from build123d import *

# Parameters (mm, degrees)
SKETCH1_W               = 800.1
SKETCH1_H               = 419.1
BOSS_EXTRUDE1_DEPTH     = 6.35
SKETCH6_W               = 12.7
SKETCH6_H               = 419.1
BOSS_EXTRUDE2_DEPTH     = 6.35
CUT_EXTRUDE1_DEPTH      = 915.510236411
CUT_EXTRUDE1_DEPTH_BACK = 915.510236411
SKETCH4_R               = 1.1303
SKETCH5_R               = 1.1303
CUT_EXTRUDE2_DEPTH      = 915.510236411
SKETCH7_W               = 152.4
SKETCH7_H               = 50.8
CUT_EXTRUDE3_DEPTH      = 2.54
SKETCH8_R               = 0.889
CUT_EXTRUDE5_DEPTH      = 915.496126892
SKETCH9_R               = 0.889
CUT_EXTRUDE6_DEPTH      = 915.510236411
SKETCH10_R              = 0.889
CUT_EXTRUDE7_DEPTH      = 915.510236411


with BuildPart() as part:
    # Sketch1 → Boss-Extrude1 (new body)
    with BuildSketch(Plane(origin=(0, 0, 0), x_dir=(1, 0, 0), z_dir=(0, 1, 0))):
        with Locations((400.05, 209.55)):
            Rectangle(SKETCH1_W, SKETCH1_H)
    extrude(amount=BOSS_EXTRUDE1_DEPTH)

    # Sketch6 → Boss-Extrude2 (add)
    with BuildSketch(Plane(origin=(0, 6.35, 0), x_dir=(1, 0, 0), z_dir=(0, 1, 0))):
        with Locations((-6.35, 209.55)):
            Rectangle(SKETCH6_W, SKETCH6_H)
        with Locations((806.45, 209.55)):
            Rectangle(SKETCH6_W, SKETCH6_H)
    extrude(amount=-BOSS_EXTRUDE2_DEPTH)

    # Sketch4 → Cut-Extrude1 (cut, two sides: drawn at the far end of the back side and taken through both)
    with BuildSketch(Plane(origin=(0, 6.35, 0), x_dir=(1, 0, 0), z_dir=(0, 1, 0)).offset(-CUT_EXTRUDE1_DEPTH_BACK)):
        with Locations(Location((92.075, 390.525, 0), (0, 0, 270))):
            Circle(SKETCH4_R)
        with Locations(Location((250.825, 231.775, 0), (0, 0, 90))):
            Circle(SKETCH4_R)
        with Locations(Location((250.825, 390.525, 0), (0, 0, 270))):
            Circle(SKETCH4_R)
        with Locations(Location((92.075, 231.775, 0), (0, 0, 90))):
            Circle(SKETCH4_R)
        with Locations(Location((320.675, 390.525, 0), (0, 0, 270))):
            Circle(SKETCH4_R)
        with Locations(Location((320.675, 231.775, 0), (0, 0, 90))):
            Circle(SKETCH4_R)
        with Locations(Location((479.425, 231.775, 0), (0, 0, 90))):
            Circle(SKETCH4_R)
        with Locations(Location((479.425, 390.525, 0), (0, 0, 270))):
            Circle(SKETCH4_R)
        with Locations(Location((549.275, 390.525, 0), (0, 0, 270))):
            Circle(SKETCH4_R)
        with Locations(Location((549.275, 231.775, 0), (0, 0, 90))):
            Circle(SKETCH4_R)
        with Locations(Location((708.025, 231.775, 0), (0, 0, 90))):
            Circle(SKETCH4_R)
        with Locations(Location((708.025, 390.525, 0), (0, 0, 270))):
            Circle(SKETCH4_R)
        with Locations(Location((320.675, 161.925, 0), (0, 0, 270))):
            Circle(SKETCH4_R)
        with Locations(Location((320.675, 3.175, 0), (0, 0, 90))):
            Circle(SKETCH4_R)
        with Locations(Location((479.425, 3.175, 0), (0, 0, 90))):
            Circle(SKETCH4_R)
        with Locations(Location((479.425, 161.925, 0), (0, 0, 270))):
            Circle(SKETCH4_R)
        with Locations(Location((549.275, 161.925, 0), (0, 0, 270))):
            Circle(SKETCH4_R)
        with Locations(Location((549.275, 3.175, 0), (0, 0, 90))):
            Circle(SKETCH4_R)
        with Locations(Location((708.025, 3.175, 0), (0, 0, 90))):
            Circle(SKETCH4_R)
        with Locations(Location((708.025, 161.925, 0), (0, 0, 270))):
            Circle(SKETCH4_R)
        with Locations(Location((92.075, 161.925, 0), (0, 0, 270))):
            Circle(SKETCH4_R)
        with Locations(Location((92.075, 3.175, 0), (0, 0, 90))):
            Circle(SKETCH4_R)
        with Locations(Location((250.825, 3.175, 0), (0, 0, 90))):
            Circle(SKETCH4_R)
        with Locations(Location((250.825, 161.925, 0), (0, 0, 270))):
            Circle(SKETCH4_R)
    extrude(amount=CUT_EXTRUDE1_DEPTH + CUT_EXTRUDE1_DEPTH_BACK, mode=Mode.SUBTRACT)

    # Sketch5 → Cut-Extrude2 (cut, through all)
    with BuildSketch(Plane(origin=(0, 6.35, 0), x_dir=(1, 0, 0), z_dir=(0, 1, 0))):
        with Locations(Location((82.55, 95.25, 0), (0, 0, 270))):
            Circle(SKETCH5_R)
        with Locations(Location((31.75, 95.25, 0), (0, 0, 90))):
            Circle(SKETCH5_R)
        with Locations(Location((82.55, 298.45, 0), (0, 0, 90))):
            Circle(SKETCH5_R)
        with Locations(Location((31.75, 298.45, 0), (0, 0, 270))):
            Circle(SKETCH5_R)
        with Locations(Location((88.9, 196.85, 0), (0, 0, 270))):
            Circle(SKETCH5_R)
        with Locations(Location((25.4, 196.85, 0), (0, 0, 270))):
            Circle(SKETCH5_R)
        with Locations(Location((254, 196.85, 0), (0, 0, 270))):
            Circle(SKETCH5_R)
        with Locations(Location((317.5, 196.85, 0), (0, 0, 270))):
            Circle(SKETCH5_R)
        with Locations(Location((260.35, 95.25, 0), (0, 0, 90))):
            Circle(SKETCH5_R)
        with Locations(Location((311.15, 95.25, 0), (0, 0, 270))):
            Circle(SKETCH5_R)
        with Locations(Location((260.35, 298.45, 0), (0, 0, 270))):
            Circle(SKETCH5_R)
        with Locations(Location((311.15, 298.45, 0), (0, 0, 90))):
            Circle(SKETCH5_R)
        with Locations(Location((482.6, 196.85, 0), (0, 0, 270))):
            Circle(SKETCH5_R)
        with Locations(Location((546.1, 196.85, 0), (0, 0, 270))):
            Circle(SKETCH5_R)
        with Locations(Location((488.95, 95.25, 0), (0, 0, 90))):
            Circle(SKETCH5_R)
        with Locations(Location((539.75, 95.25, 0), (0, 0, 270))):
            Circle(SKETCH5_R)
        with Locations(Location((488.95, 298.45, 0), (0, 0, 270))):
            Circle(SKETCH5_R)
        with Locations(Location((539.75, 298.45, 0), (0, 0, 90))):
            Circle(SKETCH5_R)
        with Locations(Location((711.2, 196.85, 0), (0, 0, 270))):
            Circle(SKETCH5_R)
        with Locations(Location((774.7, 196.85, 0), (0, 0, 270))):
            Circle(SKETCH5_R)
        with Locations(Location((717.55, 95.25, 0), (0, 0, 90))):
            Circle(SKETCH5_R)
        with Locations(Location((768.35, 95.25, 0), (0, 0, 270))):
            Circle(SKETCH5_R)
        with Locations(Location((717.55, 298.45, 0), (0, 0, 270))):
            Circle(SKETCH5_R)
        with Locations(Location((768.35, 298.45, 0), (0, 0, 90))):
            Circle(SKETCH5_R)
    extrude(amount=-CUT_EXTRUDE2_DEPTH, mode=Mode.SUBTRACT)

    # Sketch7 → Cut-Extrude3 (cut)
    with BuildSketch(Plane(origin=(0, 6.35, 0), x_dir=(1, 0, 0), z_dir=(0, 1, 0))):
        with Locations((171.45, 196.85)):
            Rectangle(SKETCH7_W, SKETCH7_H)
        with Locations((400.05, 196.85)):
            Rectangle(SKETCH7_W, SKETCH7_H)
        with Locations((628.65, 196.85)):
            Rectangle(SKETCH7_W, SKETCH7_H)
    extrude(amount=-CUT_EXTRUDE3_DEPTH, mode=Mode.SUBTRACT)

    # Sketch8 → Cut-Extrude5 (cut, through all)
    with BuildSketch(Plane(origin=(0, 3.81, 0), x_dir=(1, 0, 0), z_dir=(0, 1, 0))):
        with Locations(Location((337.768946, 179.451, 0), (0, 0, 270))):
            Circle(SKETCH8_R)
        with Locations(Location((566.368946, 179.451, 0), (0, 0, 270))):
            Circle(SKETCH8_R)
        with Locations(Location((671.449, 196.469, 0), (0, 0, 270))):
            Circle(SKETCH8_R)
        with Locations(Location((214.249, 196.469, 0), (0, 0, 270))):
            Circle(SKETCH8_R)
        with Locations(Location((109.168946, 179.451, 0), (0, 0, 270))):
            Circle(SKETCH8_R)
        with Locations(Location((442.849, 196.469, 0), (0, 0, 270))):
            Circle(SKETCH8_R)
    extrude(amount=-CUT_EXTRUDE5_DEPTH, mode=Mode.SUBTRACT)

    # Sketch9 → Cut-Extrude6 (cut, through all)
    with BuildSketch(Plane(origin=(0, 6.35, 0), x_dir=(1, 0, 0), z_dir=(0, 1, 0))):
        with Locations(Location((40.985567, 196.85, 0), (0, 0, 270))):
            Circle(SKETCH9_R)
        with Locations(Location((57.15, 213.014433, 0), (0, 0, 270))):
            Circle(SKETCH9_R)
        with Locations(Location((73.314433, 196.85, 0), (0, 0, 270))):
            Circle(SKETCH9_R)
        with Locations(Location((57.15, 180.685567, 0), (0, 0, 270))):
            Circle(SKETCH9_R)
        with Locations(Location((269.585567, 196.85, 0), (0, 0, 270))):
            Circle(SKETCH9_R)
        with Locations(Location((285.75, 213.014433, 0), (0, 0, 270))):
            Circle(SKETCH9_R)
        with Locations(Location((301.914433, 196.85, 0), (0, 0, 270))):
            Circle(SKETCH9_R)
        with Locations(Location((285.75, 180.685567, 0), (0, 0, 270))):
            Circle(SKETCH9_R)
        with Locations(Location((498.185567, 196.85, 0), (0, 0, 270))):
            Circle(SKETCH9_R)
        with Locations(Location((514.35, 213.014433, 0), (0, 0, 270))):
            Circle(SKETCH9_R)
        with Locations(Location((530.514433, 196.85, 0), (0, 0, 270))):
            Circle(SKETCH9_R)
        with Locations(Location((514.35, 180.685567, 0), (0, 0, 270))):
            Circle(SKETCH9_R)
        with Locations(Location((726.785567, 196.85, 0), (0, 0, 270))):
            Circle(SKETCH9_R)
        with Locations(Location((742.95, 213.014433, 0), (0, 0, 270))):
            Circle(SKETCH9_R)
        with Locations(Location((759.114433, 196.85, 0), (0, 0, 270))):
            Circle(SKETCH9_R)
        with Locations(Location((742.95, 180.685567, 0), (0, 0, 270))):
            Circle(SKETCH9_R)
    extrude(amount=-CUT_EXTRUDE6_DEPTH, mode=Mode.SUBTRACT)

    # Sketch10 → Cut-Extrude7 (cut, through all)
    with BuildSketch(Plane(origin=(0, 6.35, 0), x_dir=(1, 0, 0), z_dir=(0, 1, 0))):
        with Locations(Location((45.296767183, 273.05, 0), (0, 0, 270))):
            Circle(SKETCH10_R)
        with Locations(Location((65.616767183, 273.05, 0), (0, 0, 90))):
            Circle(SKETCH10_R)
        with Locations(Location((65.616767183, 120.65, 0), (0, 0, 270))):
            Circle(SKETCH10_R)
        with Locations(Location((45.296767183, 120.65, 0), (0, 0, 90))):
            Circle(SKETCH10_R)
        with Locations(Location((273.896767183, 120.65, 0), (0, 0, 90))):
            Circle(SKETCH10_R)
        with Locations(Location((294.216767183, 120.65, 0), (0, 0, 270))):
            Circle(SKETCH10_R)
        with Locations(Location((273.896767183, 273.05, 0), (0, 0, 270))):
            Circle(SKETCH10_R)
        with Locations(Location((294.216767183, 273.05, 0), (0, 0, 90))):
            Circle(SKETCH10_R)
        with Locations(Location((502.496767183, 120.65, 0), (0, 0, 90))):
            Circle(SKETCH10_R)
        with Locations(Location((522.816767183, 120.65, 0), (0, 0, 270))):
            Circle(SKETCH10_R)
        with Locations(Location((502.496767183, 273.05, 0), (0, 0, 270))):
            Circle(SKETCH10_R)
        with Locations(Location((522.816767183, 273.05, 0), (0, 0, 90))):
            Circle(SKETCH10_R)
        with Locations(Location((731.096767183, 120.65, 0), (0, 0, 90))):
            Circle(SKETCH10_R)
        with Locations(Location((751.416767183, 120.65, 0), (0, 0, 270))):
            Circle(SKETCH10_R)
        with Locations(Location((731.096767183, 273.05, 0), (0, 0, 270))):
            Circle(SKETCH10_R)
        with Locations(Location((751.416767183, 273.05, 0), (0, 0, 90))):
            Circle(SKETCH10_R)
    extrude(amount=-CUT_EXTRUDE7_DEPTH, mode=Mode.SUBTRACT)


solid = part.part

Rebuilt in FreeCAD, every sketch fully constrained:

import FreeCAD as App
import Part
import Sketcher
Q = App.Units.Quantity

doc = App.newDocument("Part")
body = doc.addObject("PartDesign::Body", "Body")

# Sketch on XZ plane
sketch1 = body.newObject("Sketcher::SketchObject", "Sketch")
sketch1.AttachmentSupport = (doc.getObject("XZ_Plane"), [""])
sketch1.MapMode = "FlatFace"
sketch1.addGeometry(Part.LineSegment(App.Vector(0, -419.1, 0), App.Vector(0, 0, 0)), False)
sketch1.addGeometry(Part.LineSegment(App.Vector(0, 0, 0), App.Vector(800.1, 0, 0)), False)
sketch1.addGeometry(Part.LineSegment(App.Vector(800.1, 0, 0), App.Vector(800.1, -419.1, 0)), False)
sketch1.addGeometry(Part.LineSegment(App.Vector(800.1, -419.1, 0), App.Vector(0, -419.1, 0)), False)
sketch1.addConstraint(Sketcher.Constraint("Coincident", 0, 2, 1, 1))
sketch1.addConstraint(Sketcher.Constraint("Coincident", 1, 2, 2, 1))
sketch1.addConstraint(Sketcher.Constraint("Coincident", 2, 2, 3, 1))
sketch1.addConstraint(Sketcher.Constraint("Coincident", 3, 2, 0, 1))
sketch1.addConstraint(Sketcher.Constraint("Vertical", 0))
sketch1.addConstraint(Sketcher.Constraint("Horizontal", 1))
sketch1.addConstraint(Sketcher.Constraint("Vertical", 2))
sketch1.addConstraint(Sketcher.Constraint("Horizontal", 3))
sketch1.addConstraint(Sketcher.Constraint("Coincident", 0, 2, -1, 1))
sketch1.addConstraint(Sketcher.Constraint("DistanceX", 1, 1, 1, 2, Q("31.5 in")))
sketch1.addConstraint(Sketcher.Constraint("DistanceY", 0, 1, 0, 2, Q("16.5 in")))
pad1 = body.newObject("PartDesign::Pad", "Pad")
pad1.Profile = sketch1
pad1.Length = Q("0.25 in")
pad1.Reversed = True

# Sketch on XZ plane
sketch2 = body.newObject("Sketcher::SketchObject", "Sketch001")
sketch2.AttachmentSupport = (doc.getObject("XZ_Plane"), [""])
sketch2.MapMode = "FlatFace"
sketch2.AttachmentOffset = App.Placement(App.Vector(0, 0, -0.25 * 25.4), App.Rotation())
sketch2.addGeometry(Part.LineSegment(App.Vector(-12.7, -419.1, 0), App.Vector(-12.7, 0, 0)), False)
sketch2.addGeometry(Part.LineSegment(App.Vector(-12.7, 0, 0), App.Vector(0, 0, 0)), False)
sketch2.addGeometry(Part.LineSegment(App.Vector(0, 0, 0), App.Vector(0, -419.1, 0)), False)
sketch2.addGeometry(Part.LineSegment(App.Vector(0, -419.1, 0), App.Vector(-12.7, -419.1, 0)), False)
sketch2.addGeometry(Part.LineSegment(App.Vector(800.1, -419.1, 0), App.Vector(800.1, 0, 0)), False)
sketch2.addGeometry(Part.LineSegment(App.Vector(800.1, 0, 0), App.Vector(812.8, 0, 0)), False)
sketch2.addGeometry(Part.LineSegment(App.Vector(812.8, 0, 0), App.Vector(812.8, -419.1, 0)), False)
sketch2.addGeometry(Part.LineSegment(App.Vector(812.8, -419.1, 0), App.Vector(800.1, -419.1, 0)), False)
sketch2.addConstraint(Sketcher.Constraint("Coincident", 0, 2, 1, 1))
sketch2.addConstraint(Sketcher.Constraint("Coincident", 1, 2, 2, 1))
sketch2.addConstraint(Sketcher.Constraint("Coincident", 2, 2, 3, 1))
sketch2.addConstraint(Sketcher.Constraint("Coincident", 3, 2, 0, 1))
sketch2.addConstraint(Sketcher.Constraint("Coincident", 4, 2, 5, 1))
sketch2.addConstraint(Sketcher.Constraint("Coincident", 5, 2, 6, 1))
sketch2.addConstraint(Sketcher.Constraint("Coincident", 6, 2, 7, 1))
sketch2.addConstraint(Sketcher.Constraint("Coincident", 7, 2, 4, 1))
sketch2.addConstraint(Sketcher.Constraint("Vertical", 0))
sketch2.addConstraint(Sketcher.Constraint("Horizontal", 1))
sketch2.addConstraint(Sketcher.Constraint("Vertical", 2))
sketch2.addConstraint(Sketcher.Constraint("Horizontal", 3))
sketch2.addConstraint(Sketcher.Constraint("Vertical", 4))
sketch2.addConstraint(Sketcher.Constraint("Horizontal", 5))
sketch2.addConstraint(Sketcher.Constraint("Vertical", 6))
sketch2.addConstraint(Sketcher.Constraint("Horizontal", 7))
sketch2.addConstraint(Sketcher.Constraint("Coincident", 1, 2, -1, 1))
sketch2.addConstraint(Sketcher.Constraint("PointOnObject", 4, 2, -1))
sketch2.addConstraint(Sketcher.Constraint("Horizontal", 3, 2, 6, 2))
sketch2.addConstraint(Sketcher.Constraint("Equal", 3, 5))
sketch2.addConstraint(Sketcher.Constraint("DistanceX", 1, 1, 1, 2, Q("0.5 in")))
sketch2.addConstraint(Sketcher.Constraint("DistanceY", 0, 1, 0, 2, Q("16.5 in")))
sketch2.addConstraint(Sketcher.Constraint("DistanceX", -1, 1, 5, 2, Q("32 in")))
pad2 = body.newObject("PartDesign::Pad", "Pad001")
pad2.Profile = sketch2
pad2.Length = Q("0.25 in")

# Sketch on XZ plane
sketch3 = body.newObject("Sketcher::SketchObject", "Sketch002")
sketch3.AttachmentSupport = (doc.getObject("XZ_Plane"), [""])
sketch3.MapMode = "FlatFace"
sketch3.AttachmentOffset = App.Placement(App.Vector(0, 0, -0.25 * 25.4), App.Rotation())
sketch3.addGeometry(Part.Circle(App.Vector(92.075, -390.525, 0), App.Vector(0, 0, 1), 1.1303), False)
sketch3.addGeometry(Part.Circle(App.Vector(250.825, -231.775, 0), App.Vector(0, 0, 1), 1.1303), False)
sketch3.addGeometry(Part.Circle(App.Vector(250.825, -390.525, 0), App.Vector(0, 0, 1), 1.1303), False)
sketch3.addGeometry(Part.Circle(App.Vector(92.075, -231.775, 0), App.Vector(0, 0, 1), 1.1303), False)
sketch3.addGeometry(Part.Circle(App.Vector(320.675, -390.525, 0), App.Vector(0, 0, 1), 1.1303), False)
sketch3.addGeometry(Part.Circle(App.Vector(320.675, -231.775, 0), App.Vector(0, 0, 1), 1.1303), False)
sketch3.addGeometry(Part.Circle(App.Vector(479.425, -231.775, 0), App.Vector(0, 0, 1), 1.1303), False)
sketch3.addGeometry(Part.Circle(App.Vector(479.425, -390.525, 0), App.Vector(0, 0, 1), 1.1303), False)
sketch3.addGeometry(Part.Circle(App.Vector(549.275, -390.525, 0), App.Vector(0, 0, 1), 1.1303), False)
sketch3.addGeometry(Part.Circle(App.Vector(549.275, -231.775, 0), App.Vector(0, 0, 1), 1.1303), False)
sketch3.addGeometry(Part.Circle(App.Vector(708.025, -231.775, 0), App.Vector(0, 0, 1), 1.1303), False)
sketch3.addGeometry(Part.Circle(App.Vector(708.025, -390.525, 0), App.Vector(0, 0, 1), 1.1303), False)
sketch3.addGeometry(Part.Circle(App.Vector(320.675, -161.925, 0), App.Vector(0, 0, 1), 1.1303), False)
sketch3.addGeometry(Part.Circle(App.Vector(320.675, -3.175, 0), App.Vector(0, 0, 1), 1.1303), False)
sketch3.addGeometry(Part.Circle(App.Vector(479.425, -3.175, 0), App.Vector(0, 0, 1), 1.1303), False)
sketch3.addGeometry(Part.Circle(App.Vector(479.425, -161.925, 0), App.Vector(0, 0, 1), 1.1303), False)
sketch3.addGeometry(Part.Circle(App.Vector(549.275, -161.925, 0), App.Vector(0, 0, 1), 1.1303), False)
sketch3.addGeometry(Part.Circle(App.Vector(549.275, -3.175, 0), App.Vector(0, 0, 1), 1.1303), False)
sketch3.addGeometry(Part.Circle(App.Vector(708.025, -3.175, 0), App.Vector(0, 0, 1), 1.1303), False)
sketch3.addGeometry(Part.Circle(App.Vector(708.025, -161.925, 0), App.Vector(0, 0, 1), 1.1303), False)
sketch3.addGeometry(Part.Circle(App.Vector(92.075, -161.925, 0), App.Vector(0, 0, 1), 1.1303), False)
sketch3.addGeometry(Part.Circle(App.Vector(92.075, -3.175, 0), App.Vector(0, 0, 1), 1.1303), False)
sketch3.addGeometry(Part.Circle(App.Vector(250.825, -3.175, 0), App.Vector(0, 0, 1), 1.1303), False)
sketch3.addGeometry(Part.Circle(App.Vector(250.825, -161.925, 0), App.Vector(0, 0, 1), 1.1303), False)
sketch3.addConstraint(Sketcher.Constraint("Equal", 0, 1))
sketch3.addConstraint(Sketcher.Constraint("Equal", 1, 2))
sketch3.addConstraint(Sketcher.Constraint("Equal", 2, 3))
sketch3.addConstraint(Sketcher.Constraint("Equal", 3, 4))
sketch3.addConstraint(Sketcher.Constraint("Equal", 4, 5))
sketch3.addConstraint(Sketcher.Constraint("Equal", 5, 6))
sketch3.addConstraint(Sketcher.Constraint("Equal", 6, 7))
sketch3.addConstraint(Sketcher.Constraint("Equal", 7, 8))
sketch3.addConstraint(Sketcher.Constraint("Equal", 8, 9))
sketch3.addConstraint(Sketcher.Constraint("Equal", 9, 10))
sketch3.addConstraint(Sketcher.Constraint("Equal", 10, 11))
sketch3.addConstraint(Sketcher.Constraint("Equal", 11, 12))
sketch3.addConstraint(Sketcher.Constraint("Equal", 12, 13))
sketch3.addConstraint(Sketcher.Constraint("Equal", 13, 14))
sketch3.addConstraint(Sketcher.Constraint("Equal", 14, 15))
sketch3.addConstraint(Sketcher.Constraint("Equal", 15, 16))
sketch3.addConstraint(Sketcher.Constraint("Equal", 16, 17))
sketch3.addConstraint(Sketcher.Constraint("Equal", 17, 18))
sketch3.addConstraint(Sketcher.Constraint("Equal", 18, 19))
sketch3.addConstraint(Sketcher.Constraint("Equal", 19, 20))
sketch3.addConstraint(Sketcher.Constraint("Equal", 20, 21))
sketch3.addConstraint(Sketcher.Constraint("Equal", 21, 22))
sketch3.addConstraint(Sketcher.Constraint("Equal", 22, 23))
sketch3.addConstraint(Sketcher.Constraint("Horizontal", 0, 3, 2, 3))
sketch3.addConstraint(Sketcher.Constraint("Horizontal", 1, 3, 3, 3))
sketch3.addConstraint(Sketcher.Constraint("Horizontal", 2, 3, 4, 3))
sketch3.addConstraint(Sketcher.Constraint("Horizontal", 3, 3, 5, 3))
sketch3.addConstraint(Sketcher.Constraint("Horizontal", 5, 3, 6, 3))
sketch3.addConstraint(Sketcher.Constraint("Horizontal", 4, 3, 7, 3))
sketch3.addConstraint(Sketcher.Constraint("Horizontal", 7, 3, 8, 3))
sketch3.addConstraint(Sketcher.Constraint("Horizontal", 6, 3, 9, 3))
sketch3.addConstraint(Sketcher.Constraint("Horizontal", 9, 3, 10, 3))
sketch3.addConstraint(Sketcher.Constraint("Horizontal", 8, 3, 11, 3))
sketch3.addConstraint(Sketcher.Constraint("Horizontal", 13, 3, 14, 3))
sketch3.addConstraint(Sketcher.Constraint("Horizontal", 12, 3, 15, 3))
sketch3.addConstraint(Sketcher.Constraint("Horizontal", 15, 3, 16, 3))
sketch3.addConstraint(Sketcher.Constraint("Horizontal", 14, 3, 17, 3))
sketch3.addConstraint(Sketcher.Constraint("Horizontal", 17, 3, 18, 3))
sketch3.addConstraint(Sketcher.Constraint("Horizontal", 16, 3, 19, 3))
sketch3.addConstraint(Sketcher.Constraint("Horizontal", 19, 3, 20, 3))
sketch3.addConstraint(Sketcher.Constraint("Horizontal", 18, 3, 21, 3))
sketch3.addConstraint(Sketcher.Constraint("Horizontal", 21, 3, 22, 3))
sketch3.addConstraint(Sketcher.Constraint("Horizontal", 20, 3, 23, 3))
sketch3.addConstraint(Sketcher.Constraint("Vertical", 1, 3, 2, 3))
sketch3.addConstraint(Sketcher.Constraint("Vertical", 0, 3, 3, 3))
sketch3.addConstraint(Sketcher.Constraint("Vertical", 4, 3, 5, 3))
sketch3.addConstraint(Sketcher.Constraint("Vertical", 6, 3, 7, 3))
sketch3.addConstraint(Sketcher.Constraint("Vertical", 8, 3, 9, 3))
sketch3.addConstraint(Sketcher.Constraint("Vertical", 10, 3, 11, 3))
sketch3.addConstraint(Sketcher.Constraint("Vertical", 5, 3, 12, 3))
sketch3.addConstraint(Sketcher.Constraint("Vertical", 12, 3, 13, 3))
sketch3.addConstraint(Sketcher.Constraint("Vertical", 7, 3, 14, 3))
sketch3.addConstraint(Sketcher.Constraint("Vertical", 14, 3, 15, 3))
sketch3.addConstraint(Sketcher.Constraint("Vertical", 9, 3, 16, 3))
sketch3.addConstraint(Sketcher.Constraint("Vertical", 16, 3, 17, 3))
sketch3.addConstraint(Sketcher.Constraint("Vertical", 11, 3, 18, 3))
sketch3.addConstraint(Sketcher.Constraint("Vertical", 18, 3, 19, 3))
sketch3.addConstraint(Sketcher.Constraint("Vertical", 3, 3, 20, 3))
sketch3.addConstraint(Sketcher.Constraint("Vertical", 20, 3, 21, 3))
sketch3.addConstraint(Sketcher.Constraint("Vertical", 2, 3, 22, 3))
sketch3.addConstraint(Sketcher.Constraint("Vertical", 22, 3, 23, 3))
sketch3.addConstraint(Sketcher.Constraint("Diameter", 0, Q("0.089 in")))
sketch3.addConstraint(Sketcher.Constraint("DistanceX", 0, 3, 4, 3, Q("9 in")))
sketch3.addConstraint(Sketcher.Constraint("DistanceX", 1, 3, 6, 3, Q("9 in")))
sketch3.addConstraint(Sketcher.Constraint("DistanceX", 4, 3, 8, 3, Q("9 in")))
sketch3.addConstraint(Sketcher.Constraint("DistanceX", 6, 3, 10, 3, Q("9 in")))
sketch3.addConstraint(Sketcher.Constraint("DistanceY", 4, 3, 12, 3, Q("9 in")))
sketch3.addConstraint(Sketcher.Constraint("DistanceY", 5, 3, 13, 3, Q("9 in")))
sketch3.addConstraint(Sketcher.Constraint("DistanceX", 0, 3, 1, 3, Q("6.25 in")))
sketch3.addConstraint(Sketcher.Constraint("DistanceY", 0, 3, 1, 3, Q("6.25 in")))
sketch3.addConstraint(Sketcher.Constraint("DistanceX", -1, 1, 0, 3, Q("3.625 in")))
sketch3.addConstraint(Sketcher.Constraint("DistanceY", 0, 3, -1, 1, Q("15.375 in")))
pocket1 = body.newObject("PartDesign::Pocket", "Pocket")
pocket1.Profile = sketch3
pocket1.Type = "ThroughAll"
pocket1.Midplane = True

# Sketch on XZ plane
sketch4 = body.newObject("Sketcher::SketchObject", "Sketch003")
sketch4.AttachmentSupport = (doc.getObject("XZ_Plane"), [""])
sketch4.MapMode = "FlatFace"
sketch4.AttachmentOffset = App.Placement(App.Vector(0, 0, -0.25 * 25.4), App.Rotation())
sketch4.addGeometry(Part.Circle(App.Vector(82.55, -95.25, 0), App.Vector(0, 0, 1), 1.1303), False)
sketch4.addGeometry(Part.Circle(App.Vector(31.75, -95.25, 0), App.Vector(0, 0, 1), 1.1303), False)
sketch4.addGeometry(Part.Circle(App.Vector(82.55, -298.45, 0), App.Vector(0, 0, 1), 1.1303), False)
sketch4.addGeometry(Part.Circle(App.Vector(31.75, -298.45, 0), App.Vector(0, 0, 1), 1.1303), False)
sketch4.addGeometry(Part.Circle(App.Vector(88.9, -196.85, 0), App.Vector(0, 0, 1), 1.1303), False)
sketch4.addGeometry(Part.Circle(App.Vector(25.4, -196.85, 0), App.Vector(0, 0, 1), 1.1303), False)
sketch4.addGeometry(Part.Circle(App.Vector(254, -196.85, 0), App.Vector(0, 0, 1), 1.1303), False)
sketch4.addGeometry(Part.Circle(App.Vector(317.5, -196.85, 0), App.Vector(0, 0, 1), 1.1303), False)
sketch4.addGeometry(Part.Circle(App.Vector(260.35, -95.25, 0), App.Vector(0, 0, 1), 1.1303), False)
sketch4.addGeometry(Part.Circle(App.Vector(311.15, -95.25, 0), App.Vector(0, 0, 1), 1.1303), False)
sketch4.addGeometry(Part.Circle(App.Vector(260.35, -298.45, 0), App.Vector(0, 0, 1), 1.1303), False)
sketch4.addGeometry(Part.Circle(App.Vector(311.15, -298.45, 0), App.Vector(0, 0, 1), 1.1303), False)
sketch4.addGeometry(Part.Circle(App.Vector(482.6, -196.85, 0), App.Vector(0, 0, 1), 1.1303), False)
sketch4.addGeometry(Part.Circle(App.Vector(546.1, -196.85, 0), App.Vector(0, 0, 1), 1.1303), False)
sketch4.addGeometry(Part.Circle(App.Vector(488.95, -95.25, 0), App.Vector(0, 0, 1), 1.1303), False)
sketch4.addGeometry(Part.Circle(App.Vector(539.75, -95.25, 0), App.Vector(0, 0, 1), 1.1303), False)
sketch4.addGeometry(Part.Circle(App.Vector(488.95, -298.45, 0), App.Vector(0, 0, 1), 1.1303), False)
sketch4.addGeometry(Part.Circle(App.Vector(539.75, -298.45, 0), App.Vector(0, 0, 1), 1.1303), False)
sketch4.addGeometry(Part.Circle(App.Vector(711.2, -196.85, 0), App.Vector(0, 0, 1), 1.1303), False)
sketch4.addGeometry(Part.Circle(App.Vector(774.7, -196.85, 0), App.Vector(0, 0, 1), 1.1303), False)
sketch4.addGeometry(Part.Circle(App.Vector(717.55, -95.25, 0), App.Vector(0, 0, 1), 1.1303), False)
sketch4.addGeometry(Part.Circle(App.Vector(768.35, -95.25, 0), App.Vector(0, 0, 1), 1.1303), False)
sketch4.addGeometry(Part.Circle(App.Vector(717.55, -298.45, 0), App.Vector(0, 0, 1), 1.1303), False)
sketch4.addGeometry(Part.Circle(App.Vector(768.35, -298.45, 0), App.Vector(0, 0, 1), 1.1303), False)
sketch4.addConstraint(Sketcher.Constraint("Equal", 0, 1))
sketch4.addConstraint(Sketcher.Constraint("Equal", 1, 2))
sketch4.addConstraint(Sketcher.Constraint("Equal", 2, 3))
sketch4.addConstraint(Sketcher.Constraint("Equal", 3, 4))
sketch4.addConstraint(Sketcher.Constraint("Equal", 4, 5))
sketch4.addConstraint(Sketcher.Constraint("Equal", 5, 6))
sketch4.addConstraint(Sketcher.Constraint("Equal", 6, 7))
sketch4.addConstraint(Sketcher.Constraint("Equal", 7, 8))
sketch4.addConstraint(Sketcher.Constraint("Equal", 8, 9))
sketch4.addConstraint(Sketcher.Constraint("Equal", 9, 10))
sketch4.addConstraint(Sketcher.Constraint("Equal", 10, 11))
sketch4.addConstraint(Sketcher.Constraint("Equal", 11, 12))
sketch4.addConstraint(Sketcher.Constraint("Equal", 12, 13))
sketch4.addConstraint(Sketcher.Constraint("Equal", 13, 14))
sketch4.addConstraint(Sketcher.Constraint("Equal", 14, 15))
sketch4.addConstraint(Sketcher.Constraint("Equal", 15, 16))
sketch4.addConstraint(Sketcher.Constraint("Equal", 16, 17))
sketch4.addConstraint(Sketcher.Constraint("Equal", 17, 18))
sketch4.addConstraint(Sketcher.Constraint("Equal", 18, 19))
sketch4.addConstraint(Sketcher.Constraint("Equal", 19, 20))
sketch4.addConstraint(Sketcher.Constraint("Equal", 20, 21))
sketch4.addConstraint(Sketcher.Constraint("Equal", 21, 22))
sketch4.addConstraint(Sketcher.Constraint("Equal", 22, 23))
sketch4.addConstraint(Sketcher.Constraint("Horizontal", 0, 3, 1, 3))
sketch4.addConstraint(Sketcher.Constraint("Horizontal", 2, 3, 3, 3))
sketch4.addConstraint(Sketcher.Constraint("Horizontal", 4, 3, 5, 3))
sketch4.addConstraint(Sketcher.Constraint("Horizontal", 5, 3, 6, 3))
sketch4.addConstraint(Sketcher.Constraint("Horizontal", 6, 3, 7, 3))
sketch4.addConstraint(Sketcher.Constraint("Horizontal", 1, 3, 8, 3))
sketch4.addConstraint(Sketcher.Constraint("Horizontal", 8, 3, 9, 3))
sketch4.addConstraint(Sketcher.Constraint("Horizontal", 3, 3, 10, 3))
sketch4.addConstraint(Sketcher.Constraint("Horizontal", 10, 3, 11, 3))
sketch4.addConstraint(Sketcher.Constraint("Horizontal", 7, 3, 12, 3))
sketch4.addConstraint(Sketcher.Constraint("Horizontal", 12, 3, 13, 3))
sketch4.addConstraint(Sketcher.Constraint("Horizontal", 9, 3, 14, 3))
sketch4.addConstraint(Sketcher.Constraint("Horizontal", 14, 3, 15, 3))
sketch4.addConstraint(Sketcher.Constraint("Horizontal", 11, 3, 16, 3))
sketch4.addConstraint(Sketcher.Constraint("Horizontal", 16, 3, 17, 3))
sketch4.addConstraint(Sketcher.Constraint("Horizontal", 13, 3, 18, 3))
sketch4.addConstraint(Sketcher.Constraint("Horizontal", 18, 3, 19, 3))
sketch4.addConstraint(Sketcher.Constraint("Horizontal", 15, 3, 20, 3))
sketch4.addConstraint(Sketcher.Constraint("Horizontal", 20, 3, 21, 3))
sketch4.addConstraint(Sketcher.Constraint("Horizontal", 17, 3, 22, 3))
sketch4.addConstraint(Sketcher.Constraint("Horizontal", 22, 3, 23, 3))
sketch4.addConstraint(Sketcher.Constraint("Vertical", 0, 3, 2, 3))
sketch4.addConstraint(Sketcher.Constraint("Vertical", 1, 3, 3, 3))
sketch4.addConstraint(Sketcher.Constraint("Vertical", 8, 3, 10, 3))
sketch4.addConstraint(Sketcher.Constraint("Vertical", 9, 3, 11, 3))
sketch4.addConstraint(Sketcher.Constraint("Vertical", 14, 3, 16, 3))
sketch4.addConstraint(Sketcher.Constraint("Vertical", 15, 3, 17, 3))
sketch4.addConstraint(Sketcher.Constraint("Vertical", 20, 3, 22, 3))
sketch4.addConstraint(Sketcher.Constraint("Vertical", 21, 3, 23, 3))
sketch4.addConstraint(Sketcher.Constraint("Diameter", 0, Q("0.089 in")))
sketch4.addConstraint(Sketcher.Constraint("DistanceX", -1, 1, 5, 3, Q("1 in")))
sketch4.addConstraint(Sketcher.Constraint("DistanceX", -1, 1, 6, 3, Q("10 in")))
sketch4.addConstraint(Sketcher.Constraint("DistanceX", -1, 1, 12, 3, Q("19 in")))
sketch4.addConstraint(Sketcher.Constraint("DistanceX", -1, 1, 18, 3, Q("28 in")))
sketch4.addConstraint(Sketcher.Constraint("DistanceX", 1, 3, 0, 3, Q("2 in")))
sketch4.addConstraint(Sketcher.Constraint("DistanceY", 2, 3, 0, 3, Q("8 in")))
sketch4.addConstraint(Sketcher.Constraint("DistanceY", 4, 3, 0, 3, Q("4 in")))
sketch4.addConstraint(Sketcher.Constraint("DistanceX", 4, 3, 7, 3, Q("9 in")))
sketch4.addConstraint(Sketcher.Constraint("DistanceX", 0, 3, 8, 3, Q("7 in")))
sketch4.addConstraint(Sketcher.Constraint("DistanceX", 8, 3, 9, 3, Q("2 in")))
sketch4.addConstraint(Sketcher.Constraint("DistanceX", 7, 3, 13, 3, Q("9 in")))
sketch4.addConstraint(Sketcher.Constraint("DistanceX", 9, 3, 14, 3, Q("7 in")))
sketch4.addConstraint(Sketcher.Constraint("DistanceX", 14, 3, 15, 3, Q("2 in")))
sketch4.addConstraint(Sketcher.Constraint("DistanceX", 13, 3, 19, 3, Q("9 in")))
sketch4.addConstraint(Sketcher.Constraint("DistanceX", 15, 3, 20, 3, Q("7 in")))
sketch4.addConstraint(Sketcher.Constraint("DistanceX", 20, 3, 21, 3, Q("2 in")))
sketch4.addConstraint(Sketcher.Constraint("DistanceX", -1, 1, 4, 3, Q("3.5 in")))
sketch4.addConstraint(Sketcher.Constraint("DistanceX", -1, 1, 0, 3, Q("3.25 in")))
sketch4.addConstraint(Sketcher.Constraint("DistanceY", 0, 3, -1, 1, Q("3.75 in")))
pocket2 = body.newObject("PartDesign::Pocket", "Pocket001")
pocket2.Profile = sketch4
pocket2.Type = "ThroughAll"
pocket2.Reversed = True

# Sketch on XZ plane
sketch5 = body.newObject("Sketcher::SketchObject", "Sketch004")
sketch5.AttachmentSupport = (doc.getObject("XZ_Plane"), [""])
sketch5.MapMode = "FlatFace"
sketch5.AttachmentOffset = App.Placement(App.Vector(0, 0, -0.25 * 25.4), App.Rotation())
sketch5.addGeometry(Part.LineSegment(App.Vector(95.25, -222.25, 0), App.Vector(95.25, -171.45, 0)), False)
sketch5.addGeometry(Part.LineSegment(App.Vector(95.25, -171.45, 0), App.Vector(247.65, -171.45, 0)), False)
sketch5.addGeometry(Part.LineSegment(App.Vector(247.65, -171.45, 0), App.Vector(247.65, -222.25, 0)), False)
sketch5.addGeometry(Part.LineSegment(App.Vector(247.65, -222.25, 0), App.Vector(95.25, -222.25, 0)), False)
sketch5.addGeometry(Part.LineSegment(App.Vector(323.85, -222.25, 0), App.Vector(323.85, -171.45, 0)), False)
sketch5.addGeometry(Part.LineSegment(App.Vector(323.85, -171.45, 0), App.Vector(476.25, -171.45, 0)), False)
sketch5.addGeometry(Part.LineSegment(App.Vector(476.25, -171.45, 0), App.Vector(476.25, -222.25, 0)), False)
sketch5.addGeometry(Part.LineSegment(App.Vector(476.25, -222.25, 0), App.Vector(323.85, -222.25, 0)), False)
sketch5.addGeometry(Part.LineSegment(App.Vector(552.45, -222.25, 0), App.Vector(552.45, -171.45, 0)), False)
sketch5.addGeometry(Part.LineSegment(App.Vector(552.45, -171.45, 0), App.Vector(704.85, -171.45, 0)), False)
sketch5.addGeometry(Part.LineSegment(App.Vector(704.85, -171.45, 0), App.Vector(704.85, -222.25, 0)), False)
sketch5.addGeometry(Part.LineSegment(App.Vector(704.85, -222.25, 0), App.Vector(552.45, -222.25, 0)), False)
sketch5.addConstraint(Sketcher.Constraint("Coincident", 0, 2, 1, 1))
sketch5.addConstraint(Sketcher.Constraint("Coincident", 1, 2, 2, 1))
sketch5.addConstraint(Sketcher.Constraint("Coincident", 2, 2, 3, 1))
sketch5.addConstraint(Sketcher.Constraint("Coincident", 3, 2, 0, 1))
sketch5.addConstraint(Sketcher.Constraint("Coincident", 4, 2, 5, 1))
sketch5.addConstraint(Sketcher.Constraint("Coincident", 5, 2, 6, 1))
sketch5.addConstraint(Sketcher.Constraint("Coincident", 6, 2, 7, 1))
sketch5.addConstraint(Sketcher.Constraint("Coincident", 7, 2, 4, 1))
sketch5.addConstraint(Sketcher.Constraint("Coincident", 8, 2, 9, 1))
sketch5.addConstraint(Sketcher.Constraint("Coincident", 9, 2, 10, 1))
sketch5.addConstraint(Sketcher.Constraint("Coincident", 10, 2, 11, 1))
sketch5.addConstraint(Sketcher.Constraint("Coincident", 11, 2, 8, 1))
sketch5.addConstraint(Sketcher.Constraint("Vertical", 0))
sketch5.addConstraint(Sketcher.Constraint("Horizontal", 1))
sketch5.addConstraint(Sketcher.Constraint("Vertical", 2))
sketch5.addConstraint(Sketcher.Constraint("Horizontal", 3))
sketch5.addConstraint(Sketcher.Constraint("Vertical", 4))
sketch5.addConstraint(Sketcher.Constraint("Horizontal", 5))
sketch5.addConstraint(Sketcher.Constraint("Vertical", 6))
sketch5.addConstraint(Sketcher.Constraint("Horizontal", 7))
sketch5.addConstraint(Sketcher.Constraint("Vertical", 8))
sketch5.addConstraint(Sketcher.Constraint("Horizontal", 9))
sketch5.addConstraint(Sketcher.Constraint("Vertical", 10))
sketch5.addConstraint(Sketcher.Constraint("Horizontal", 11))
sketch5.addConstraint(Sketcher.Constraint("Horizontal", 1, 2, 4, 2))
sketch5.addConstraint(Sketcher.Constraint("Horizontal", 3, 2, 6, 2))
sketch5.addConstraint(Sketcher.Constraint("Horizontal", 5, 2, 8, 2))
sketch5.addConstraint(Sketcher.Constraint("Horizontal", 7, 2, 10, 2))
sketch5.addConstraint(Sketcher.Constraint("Equal", 3, 5))
sketch5.addConstraint(Sketcher.Constraint("Equal", 7, 9))
sketch5.addConstraint(Sketcher.Constraint("DistanceX", 1, 1, 1, 2, Q("6 in")))
sketch5.addConstraint(Sketcher.Constraint("DistanceY", 0, 1, 0, 2, Q("2 in")))
sketch5.addConstraint(Sketcher.Constraint("DistanceX", 1, 2, 4, 2, Q("3 in")))
sketch5.addConstraint(Sketcher.Constraint("DistanceX", 5, 2, 8, 2, Q("3 in")))
sketch5.addConstraint(Sketcher.Constraint("DistanceX", -1, 1, 0, 2, Q("3.75 in")))
sketch5.addConstraint(Sketcher.Constraint("DistanceY", 0, 2, -1, 1, Q("6.75 in")))
pocket3 = body.newObject("PartDesign::Pocket", "Pocket002")
pocket3.Profile = sketch5
pocket3.Length = Q("0.1 in")
pocket3.Reversed = True

# Sketch on XZ plane
sketch6 = body.newObject("Sketcher::SketchObject", "Sketch005")
sketch6.AttachmentSupport = (doc.getObject("XZ_Plane"), [""])
sketch6.MapMode = "FlatFace"
sketch6.AttachmentOffset = App.Placement(App.Vector(0, 0, -0.15 * 25.4), App.Rotation())
sketch6.addGeometry(Part.Circle(App.Vector(337.768946, -179.451, 0), App.Vector(0, 0, 1), 0.889), False)
sketch6.addGeometry(Part.Circle(App.Vector(566.368946, -179.451, 0), App.Vector(0, 0, 1), 0.889), False)
sketch6.addGeometry(Part.Circle(App.Vector(671.449, -196.469, 0), App.Vector(0, 0, 1), 0.889), False)
sketch6.addGeometry(Part.Circle(App.Vector(214.249, -196.469, 0), App.Vector(0, 0, 1), 0.889), False)
sketch6.addGeometry(Part.Circle(App.Vector(109.168946, -179.451, 0), App.Vector(0, 0, 1), 0.889), False)
sketch6.addGeometry(Part.Circle(App.Vector(442.849, -196.469, 0), App.Vector(0, 0, 1), 0.889), False)
sketch6.addConstraint(Sketcher.Constraint("Equal", 0, 1))
sketch6.addConstraint(Sketcher.Constraint("Equal", 1, 2))
sketch6.addConstraint(Sketcher.Constraint("Equal", 2, 3))
sketch6.addConstraint(Sketcher.Constraint("Equal", 3, 4))
sketch6.addConstraint(Sketcher.Constraint("Equal", 4, 5))
sketch6.addConstraint(Sketcher.Constraint("Horizontal", 0, 3, 1, 3))
sketch6.addConstraint(Sketcher.Constraint("Horizontal", 2, 3, 3, 3))
sketch6.addConstraint(Sketcher.Constraint("Horizontal", 1, 3, 4, 3))
sketch6.addConstraint(Sketcher.Constraint("Horizontal", 3, 3, 5, 3))
sketch6.addConstraint(Sketcher.Constraint("Diameter", 0, Q("0.07 in")))
sketch6.addConstraint(Sketcher.Constraint("DistanceX", 0, 3, 1, 3, Q("9 in")))
sketch6.addConstraint(Sketcher.Constraint("DistanceX", 3, 3, 2, 3, Q("18 in")))
sketch6.addConstraint(Sketcher.Constraint("DistanceX", 4, 3, 0, 3, Q("9 in")))
sketch6.addConstraint(Sketcher.Constraint("DistanceX", 5, 3, 2, 3, Q("9 in")))
sketch6.addConstraint(Sketcher.Constraint("DistanceY", 2, 3, 1, 3, Q("0.67 in")))
sketch6.addConstraint(Sketcher.Constraint("DistanceY", 0, 3, -1, 1, Q("7.065 in")))
sketch6.addConstraint(Sketcher.Constraint("DistanceX", -1, 1, 2, 3, Q("26.435 in")))
sketch6.addConstraint(Sketcher.Constraint("DistanceX", -1, 1, 0, 3, Q("337.768946 mm")))
pocket4 = body.newObject("PartDesign::Pocket", "Pocket003")
pocket4.Profile = sketch6
pocket4.Type = "ThroughAll"
pocket4.Reversed = True

# Sketch on XZ plane
sketch7 = body.newObject("Sketcher::SketchObject", "Sketch006")
sketch7.AttachmentSupport = (doc.getObject("XZ_Plane"), [""])
sketch7.MapMode = "FlatFace"
sketch7.AttachmentOffset = App.Placement(App.Vector(0, 0, -0.25 * 25.4), App.Rotation())
sketch7.addGeometry(Part.Circle(App.Vector(40.985567, -196.85, 0), App.Vector(0, 0, 1), 0.889), False)
sketch7.addGeometry(Part.Circle(App.Vector(57.15, -213.014433, 0), App.Vector(0, 0, 1), 0.889), False)
sketch7.addGeometry(Part.Circle(App.Vector(73.314433, -196.85, 0), App.Vector(0, 0, 1), 0.889), False)
sketch7.addGeometry(Part.Circle(App.Vector(57.15, -180.685567, 0), App.Vector(0, 0, 1), 0.889), False)
sketch7.addGeometry(Part.Circle(App.Vector(269.585567, -196.85, 0), App.Vector(0, 0, 1), 0.889), False)
sketch7.addGeometry(Part.Circle(App.Vector(285.75, -213.014433, 0), App.Vector(0, 0, 1), 0.889), False)
sketch7.addGeometry(Part.Circle(App.Vector(301.914433, -196.85, 0), App.Vector(0, 0, 1), 0.889), False)
sketch7.addGeometry(Part.Circle(App.Vector(285.75, -180.685567, 0), App.Vector(0, 0, 1), 0.889), False)
sketch7.addGeometry(Part.Circle(App.Vector(498.185567, -196.85, 0), App.Vector(0, 0, 1), 0.889), False)
sketch7.addGeometry(Part.Circle(App.Vector(514.35, -213.014433, 0), App.Vector(0, 0, 1), 0.889), False)
sketch7.addGeometry(Part.Circle(App.Vector(530.514433, -196.85, 0), App.Vector(0, 0, 1), 0.889), False)
sketch7.addGeometry(Part.Circle(App.Vector(514.35, -180.685567, 0), App.Vector(0, 0, 1), 0.889), False)
sketch7.addGeometry(Part.Circle(App.Vector(726.785567, -196.85, 0), App.Vector(0, 0, 1), 0.889), False)
sketch7.addGeometry(Part.Circle(App.Vector(742.95, -213.014433, 0), App.Vector(0, 0, 1), 0.889), False)
sketch7.addGeometry(Part.Circle(App.Vector(759.114433, -196.85, 0), App.Vector(0, 0, 1), 0.889), False)
sketch7.addGeometry(Part.Circle(App.Vector(742.95, -180.685567, 0), App.Vector(0, 0, 1), 0.889), False)
sketch7.addConstraint(Sketcher.Constraint("Equal", 0, 1))
sketch7.addConstraint(Sketcher.Constraint("Equal", 1, 2))
sketch7.addConstraint(Sketcher.Constraint("Equal", 2, 3))
sketch7.addConstraint(Sketcher.Constraint("Equal", 3, 4))
sketch7.addConstraint(Sketcher.Constraint("Equal", 4, 5))
sketch7.addConstraint(Sketcher.Constraint("Equal", 5, 6))
sketch7.addConstraint(Sketcher.Constraint("Equal", 6, 7))
sketch7.addConstraint(Sketcher.Constraint("Equal", 7, 8))
sketch7.addConstraint(Sketcher.Constraint("Equal", 8, 9))
sketch7.addConstraint(Sketcher.Constraint("Equal", 9, 10))
sketch7.addConstraint(Sketcher.Constraint("Equal", 10, 11))
sketch7.addConstraint(Sketcher.Constraint("Equal", 11, 12))
sketch7.addConstraint(Sketcher.Constraint("Equal", 12, 13))
sketch7.addConstraint(Sketcher.Constraint("Equal", 13, 14))
sketch7.addConstraint(Sketcher.Constraint("Equal", 14, 15))
sketch7.addConstraint(Sketcher.Constraint("Horizontal", 0, 3, 2, 3))
sketch7.addConstraint(Sketcher.Constraint("Horizontal", 2, 3, 4, 3))
sketch7.addConstraint(Sketcher.Constraint("Horizontal", 1, 3, 5, 3))
sketch7.addConstraint(Sketcher.Constraint("Horizontal", 4, 3, 6, 3))
sketch7.addConstraint(Sketcher.Constraint("Horizontal", 3, 3, 7, 3))
sketch7.addConstraint(Sketcher.Constraint("Horizontal", 6, 3, 8, 3))
sketch7.addConstraint(Sketcher.Constraint("Horizontal", 5, 3, 9, 3))
sketch7.addConstraint(Sketcher.Constraint("Horizontal", 8, 3, 10, 3))
sketch7.addConstraint(Sketcher.Constraint("Horizontal", 7, 3, 11, 3))
sketch7.addConstraint(Sketcher.Constraint("Horizontal", 10, 3, 12, 3))
sketch7.addConstraint(Sketcher.Constraint("Horizontal", 9, 3, 13, 3))
sketch7.addConstraint(Sketcher.Constraint("Horizontal", 12, 3, 14, 3))
sketch7.addConstraint(Sketcher.Constraint("Horizontal", 11, 3, 15, 3))
sketch7.addConstraint(Sketcher.Constraint("Vertical", 1, 3, 3, 3))
sketch7.addConstraint(Sketcher.Constraint("Vertical", 5, 3, 7, 3))
sketch7.addConstraint(Sketcher.Constraint("Vertical", 9, 3, 11, 3))
sketch7.addConstraint(Sketcher.Constraint("Vertical", 13, 3, 15, 3))
sketch7.addConstraint(Sketcher.Constraint("Diameter", 0, Q("0.07 in")))
sketch7.addConstraint(Sketcher.Constraint("DistanceX", 0, 3, 4, 3, Q("9 in")))
sketch7.addConstraint(Sketcher.Constraint("DistanceX", 1, 3, 5, 3, Q("9 in")))
sketch7.addConstraint(Sketcher.Constraint("DistanceX", 2, 3, 6, 3, Q("9 in")))
sketch7.addConstraint(Sketcher.Constraint("DistanceX", 4, 3, 8, 3, Q("9 in")))
sketch7.addConstraint(Sketcher.Constraint("DistanceX", 5, 3, 9, 3, Q("9 in")))
sketch7.addConstraint(Sketcher.Constraint("DistanceX", 6, 3, 10, 3, Q("9 in")))
sketch7.addConstraint(Sketcher.Constraint("DistanceX", 8, 3, 12, 3, Q("9 in")))
sketch7.addConstraint(Sketcher.Constraint("DistanceX", 9, 3, 13, 3, Q("9 in")))
sketch7.addConstraint(Sketcher.Constraint("DistanceX", 10, 3, 14, 3, Q("9 in")))
sketch7.addConstraint(Sketcher.Constraint("DistanceY", 0, 3, -1, 1, Q("7.75 in")))
sketch7.addConstraint(Sketcher.Constraint("DistanceX", -1, 1, 1, 3, Q("2.25 in")))
sketch7.addConstraint(Sketcher.Constraint("DistanceX", -1, 1, 0, 3, Q("40.985567 mm")))
sketch7.addConstraint(Sketcher.Constraint("DistanceY", 1, 3, -1, 1, Q("213.014433 mm")))
sketch7.addConstraint(Sketcher.Constraint("DistanceX", -1, 1, 2, 3, Q("73.314433 mm")))
sketch7.addConstraint(Sketcher.Constraint("DistanceY", 3, 3, -1, 1, Q("180.685567 mm")))
pocket5 = body.newObject("PartDesign::Pocket", "Pocket004")
pocket5.Profile = sketch7
pocket5.Type = "ThroughAll"
pocket5.Reversed = True

# Sketch on XZ plane
sketch8 = body.newObject("Sketcher::SketchObject", "Sketch007")
sketch8.AttachmentSupport = (doc.getObject("XZ_Plane"), [""])
sketch8.MapMode = "FlatFace"
sketch8.AttachmentOffset = App.Placement(App.Vector(0, 0, -0.25 * 25.4), App.Rotation())
sketch8.addGeometry(Part.Circle(App.Vector(45.296767, -273.05, 0), App.Vector(0, 0, 1), 0.889), False)
sketch8.addGeometry(Part.Circle(App.Vector(65.616767, -273.05, 0), App.Vector(0, 0, 1), 0.889), False)
sketch8.addGeometry(Part.Circle(App.Vector(65.616767, -120.65, 0), App.Vector(0, 0, 1), 0.889), False)
sketch8.addGeometry(Part.Circle(App.Vector(45.296767, -120.65, 0), App.Vector(0, 0, 1), 0.889), False)
sketch8.addGeometry(Part.Circle(App.Vector(273.896767, -120.65, 0), App.Vector(0, 0, 1), 0.889), False)
sketch8.addGeometry(Part.Circle(App.Vector(294.216767, -120.65, 0), App.Vector(0, 0, 1), 0.889), False)
sketch8.addGeometry(Part.Circle(App.Vector(273.896767, -273.05, 0), App.Vector(0, 0, 1), 0.889), False)
sketch8.addGeometry(Part.Circle(App.Vector(294.216767, -273.05, 0), App.Vector(0, 0, 1), 0.889), False)
sketch8.addGeometry(Part.Circle(App.Vector(502.496767, -120.65, 0), App.Vector(0, 0, 1), 0.889), False)
sketch8.addGeometry(Part.Circle(App.Vector(522.816767, -120.65, 0), App.Vector(0, 0, 1), 0.889), False)
sketch8.addGeometry(Part.Circle(App.Vector(502.496767, -273.05, 0), App.Vector(0, 0, 1), 0.889), False)
sketch8.addGeometry(Part.Circle(App.Vector(522.816767, -273.05, 0), App.Vector(0, 0, 1), 0.889), False)
sketch8.addGeometry(Part.Circle(App.Vector(731.096767, -120.65, 0), App.Vector(0, 0, 1), 0.889), False)
sketch8.addGeometry(Part.Circle(App.Vector(751.416767, -120.65, 0), App.Vector(0, 0, 1), 0.889), False)
sketch8.addGeometry(Part.Circle(App.Vector(731.096767, -273.05, 0), App.Vector(0, 0, 1), 0.889), False)
sketch8.addGeometry(Part.Circle(App.Vector(751.416767, -273.05, 0), App.Vector(0, 0, 1), 0.889), False)
sketch8.addConstraint(Sketcher.Constraint("Equal", 0, 1))
sketch8.addConstraint(Sketcher.Constraint("Equal", 1, 2))
sketch8.addConstraint(Sketcher.Constraint("Equal", 2, 3))
sketch8.addConstraint(Sketcher.Constraint("Equal", 3, 4))
sketch8.addConstraint(Sketcher.Constraint("Equal", 4, 5))
sketch8.addConstraint(Sketcher.Constraint("Equal", 5, 6))
sketch8.addConstraint(Sketcher.Constraint("Equal", 6, 7))
sketch8.addConstraint(Sketcher.Constraint("Equal", 7, 8))
sketch8.addConstraint(Sketcher.Constraint("Equal", 8, 9))
sketch8.addConstraint(Sketcher.Constraint("Equal", 9, 10))
sketch8.addConstraint(Sketcher.Constraint("Equal", 10, 11))
sketch8.addConstraint(Sketcher.Constraint("Equal", 11, 12))
sketch8.addConstraint(Sketcher.Constraint("Equal", 12, 13))
sketch8.addConstraint(Sketcher.Constraint("Equal", 13, 14))
sketch8.addConstraint(Sketcher.Constraint("Equal", 14, 15))
sketch8.addConstraint(Sketcher.Constraint("Horizontal", 0, 3, 1, 3))
sketch8.addConstraint(Sketcher.Constraint("Horizontal", 2, 3, 3, 3))
sketch8.addConstraint(Sketcher.Constraint("Horizontal", 3, 3, 4, 3))
sketch8.addConstraint(Sketcher.Constraint("Horizontal", 4, 3, 5, 3))
sketch8.addConstraint(Sketcher.Constraint("Horizontal", 1, 3, 6, 3))
sketch8.addConstraint(Sketcher.Constraint("Horizontal", 6, 3, 7, 3))
sketch8.addConstraint(Sketcher.Constraint("Horizontal", 5, 3, 8, 3))
sketch8.addConstraint(Sketcher.Constraint("Horizontal", 8, 3, 9, 3))
sketch8.addConstraint(Sketcher.Constraint("Horizontal", 7, 3, 10, 3))
sketch8.addConstraint(Sketcher.Constraint("Horizontal", 10, 3, 11, 3))
sketch8.addConstraint(Sketcher.Constraint("Horizontal", 9, 3, 12, 3))
sketch8.addConstraint(Sketcher.Constraint("Horizontal", 12, 3, 13, 3))
sketch8.addConstraint(Sketcher.Constraint("Horizontal", 11, 3, 14, 3))
sketch8.addConstraint(Sketcher.Constraint("Horizontal", 14, 3, 15, 3))
sketch8.addConstraint(Sketcher.Constraint("Vertical", 1, 3, 2, 3))
sketch8.addConstraint(Sketcher.Constraint("Vertical", 0, 3, 3, 3))
sketch8.addConstraint(Sketcher.Constraint("Vertical", 4, 3, 6, 3))
sketch8.addConstraint(Sketcher.Constraint("Vertical", 5, 3, 7, 3))
sketch8.addConstraint(Sketcher.Constraint("Vertical", 8, 3, 10, 3))
sketch8.addConstraint(Sketcher.Constraint("Vertical", 9, 3, 11, 3))
sketch8.addConstraint(Sketcher.Constraint("Vertical", 12, 3, 14, 3))
sketch8.addConstraint(Sketcher.Constraint("Vertical", 13, 3, 15, 3))
sketch8.addConstraint(Sketcher.Constraint("Diameter", 0, Q("0.07 in")))
sketch8.addConstraint(Sketcher.Constraint("DistanceY", 1, 3, 2, 3, Q("6 in")))
sketch8.addConstraint(Sketcher.Constraint("DistanceX", 3, 3, 4, 3, Q("9 in")))
sketch8.addConstraint(Sketcher.Constraint("DistanceX", 2, 3, 5, 3, Q("9 in")))
sketch8.addConstraint(Sketcher.Constraint("DistanceX", 4, 3, 8, 3, Q("9 in")))
sketch8.addConstraint(Sketcher.Constraint("DistanceX", 5, 3, 9, 3, Q("9 in")))
sketch8.addConstraint(Sketcher.Constraint("DistanceX", 8, 3, 12, 3, Q("9 in")))
sketch8.addConstraint(Sketcher.Constraint("DistanceX", 9, 3, 13, 3, Q("9 in")))
sketch8.addConstraint(Sketcher.Constraint("DistanceX", 0, 3, 1, 3, Q("0.8 in")))
sketch8.addConstraint(Sketcher.Constraint("DistanceY", 0, 3, -1, 1, Q("10.75 in")))
sketch8.addConstraint(Sketcher.Constraint("DistanceX", -1, 1, 0, 3, Q("45.296767 mm")))
pocket6 = body.newObject("PartDesign::Pocket", "Pocket005")
pocket6.Profile = sketch8
pocket6.Type = "ThroughAll"
pocket6.Reversed = True

doc.recompute()
